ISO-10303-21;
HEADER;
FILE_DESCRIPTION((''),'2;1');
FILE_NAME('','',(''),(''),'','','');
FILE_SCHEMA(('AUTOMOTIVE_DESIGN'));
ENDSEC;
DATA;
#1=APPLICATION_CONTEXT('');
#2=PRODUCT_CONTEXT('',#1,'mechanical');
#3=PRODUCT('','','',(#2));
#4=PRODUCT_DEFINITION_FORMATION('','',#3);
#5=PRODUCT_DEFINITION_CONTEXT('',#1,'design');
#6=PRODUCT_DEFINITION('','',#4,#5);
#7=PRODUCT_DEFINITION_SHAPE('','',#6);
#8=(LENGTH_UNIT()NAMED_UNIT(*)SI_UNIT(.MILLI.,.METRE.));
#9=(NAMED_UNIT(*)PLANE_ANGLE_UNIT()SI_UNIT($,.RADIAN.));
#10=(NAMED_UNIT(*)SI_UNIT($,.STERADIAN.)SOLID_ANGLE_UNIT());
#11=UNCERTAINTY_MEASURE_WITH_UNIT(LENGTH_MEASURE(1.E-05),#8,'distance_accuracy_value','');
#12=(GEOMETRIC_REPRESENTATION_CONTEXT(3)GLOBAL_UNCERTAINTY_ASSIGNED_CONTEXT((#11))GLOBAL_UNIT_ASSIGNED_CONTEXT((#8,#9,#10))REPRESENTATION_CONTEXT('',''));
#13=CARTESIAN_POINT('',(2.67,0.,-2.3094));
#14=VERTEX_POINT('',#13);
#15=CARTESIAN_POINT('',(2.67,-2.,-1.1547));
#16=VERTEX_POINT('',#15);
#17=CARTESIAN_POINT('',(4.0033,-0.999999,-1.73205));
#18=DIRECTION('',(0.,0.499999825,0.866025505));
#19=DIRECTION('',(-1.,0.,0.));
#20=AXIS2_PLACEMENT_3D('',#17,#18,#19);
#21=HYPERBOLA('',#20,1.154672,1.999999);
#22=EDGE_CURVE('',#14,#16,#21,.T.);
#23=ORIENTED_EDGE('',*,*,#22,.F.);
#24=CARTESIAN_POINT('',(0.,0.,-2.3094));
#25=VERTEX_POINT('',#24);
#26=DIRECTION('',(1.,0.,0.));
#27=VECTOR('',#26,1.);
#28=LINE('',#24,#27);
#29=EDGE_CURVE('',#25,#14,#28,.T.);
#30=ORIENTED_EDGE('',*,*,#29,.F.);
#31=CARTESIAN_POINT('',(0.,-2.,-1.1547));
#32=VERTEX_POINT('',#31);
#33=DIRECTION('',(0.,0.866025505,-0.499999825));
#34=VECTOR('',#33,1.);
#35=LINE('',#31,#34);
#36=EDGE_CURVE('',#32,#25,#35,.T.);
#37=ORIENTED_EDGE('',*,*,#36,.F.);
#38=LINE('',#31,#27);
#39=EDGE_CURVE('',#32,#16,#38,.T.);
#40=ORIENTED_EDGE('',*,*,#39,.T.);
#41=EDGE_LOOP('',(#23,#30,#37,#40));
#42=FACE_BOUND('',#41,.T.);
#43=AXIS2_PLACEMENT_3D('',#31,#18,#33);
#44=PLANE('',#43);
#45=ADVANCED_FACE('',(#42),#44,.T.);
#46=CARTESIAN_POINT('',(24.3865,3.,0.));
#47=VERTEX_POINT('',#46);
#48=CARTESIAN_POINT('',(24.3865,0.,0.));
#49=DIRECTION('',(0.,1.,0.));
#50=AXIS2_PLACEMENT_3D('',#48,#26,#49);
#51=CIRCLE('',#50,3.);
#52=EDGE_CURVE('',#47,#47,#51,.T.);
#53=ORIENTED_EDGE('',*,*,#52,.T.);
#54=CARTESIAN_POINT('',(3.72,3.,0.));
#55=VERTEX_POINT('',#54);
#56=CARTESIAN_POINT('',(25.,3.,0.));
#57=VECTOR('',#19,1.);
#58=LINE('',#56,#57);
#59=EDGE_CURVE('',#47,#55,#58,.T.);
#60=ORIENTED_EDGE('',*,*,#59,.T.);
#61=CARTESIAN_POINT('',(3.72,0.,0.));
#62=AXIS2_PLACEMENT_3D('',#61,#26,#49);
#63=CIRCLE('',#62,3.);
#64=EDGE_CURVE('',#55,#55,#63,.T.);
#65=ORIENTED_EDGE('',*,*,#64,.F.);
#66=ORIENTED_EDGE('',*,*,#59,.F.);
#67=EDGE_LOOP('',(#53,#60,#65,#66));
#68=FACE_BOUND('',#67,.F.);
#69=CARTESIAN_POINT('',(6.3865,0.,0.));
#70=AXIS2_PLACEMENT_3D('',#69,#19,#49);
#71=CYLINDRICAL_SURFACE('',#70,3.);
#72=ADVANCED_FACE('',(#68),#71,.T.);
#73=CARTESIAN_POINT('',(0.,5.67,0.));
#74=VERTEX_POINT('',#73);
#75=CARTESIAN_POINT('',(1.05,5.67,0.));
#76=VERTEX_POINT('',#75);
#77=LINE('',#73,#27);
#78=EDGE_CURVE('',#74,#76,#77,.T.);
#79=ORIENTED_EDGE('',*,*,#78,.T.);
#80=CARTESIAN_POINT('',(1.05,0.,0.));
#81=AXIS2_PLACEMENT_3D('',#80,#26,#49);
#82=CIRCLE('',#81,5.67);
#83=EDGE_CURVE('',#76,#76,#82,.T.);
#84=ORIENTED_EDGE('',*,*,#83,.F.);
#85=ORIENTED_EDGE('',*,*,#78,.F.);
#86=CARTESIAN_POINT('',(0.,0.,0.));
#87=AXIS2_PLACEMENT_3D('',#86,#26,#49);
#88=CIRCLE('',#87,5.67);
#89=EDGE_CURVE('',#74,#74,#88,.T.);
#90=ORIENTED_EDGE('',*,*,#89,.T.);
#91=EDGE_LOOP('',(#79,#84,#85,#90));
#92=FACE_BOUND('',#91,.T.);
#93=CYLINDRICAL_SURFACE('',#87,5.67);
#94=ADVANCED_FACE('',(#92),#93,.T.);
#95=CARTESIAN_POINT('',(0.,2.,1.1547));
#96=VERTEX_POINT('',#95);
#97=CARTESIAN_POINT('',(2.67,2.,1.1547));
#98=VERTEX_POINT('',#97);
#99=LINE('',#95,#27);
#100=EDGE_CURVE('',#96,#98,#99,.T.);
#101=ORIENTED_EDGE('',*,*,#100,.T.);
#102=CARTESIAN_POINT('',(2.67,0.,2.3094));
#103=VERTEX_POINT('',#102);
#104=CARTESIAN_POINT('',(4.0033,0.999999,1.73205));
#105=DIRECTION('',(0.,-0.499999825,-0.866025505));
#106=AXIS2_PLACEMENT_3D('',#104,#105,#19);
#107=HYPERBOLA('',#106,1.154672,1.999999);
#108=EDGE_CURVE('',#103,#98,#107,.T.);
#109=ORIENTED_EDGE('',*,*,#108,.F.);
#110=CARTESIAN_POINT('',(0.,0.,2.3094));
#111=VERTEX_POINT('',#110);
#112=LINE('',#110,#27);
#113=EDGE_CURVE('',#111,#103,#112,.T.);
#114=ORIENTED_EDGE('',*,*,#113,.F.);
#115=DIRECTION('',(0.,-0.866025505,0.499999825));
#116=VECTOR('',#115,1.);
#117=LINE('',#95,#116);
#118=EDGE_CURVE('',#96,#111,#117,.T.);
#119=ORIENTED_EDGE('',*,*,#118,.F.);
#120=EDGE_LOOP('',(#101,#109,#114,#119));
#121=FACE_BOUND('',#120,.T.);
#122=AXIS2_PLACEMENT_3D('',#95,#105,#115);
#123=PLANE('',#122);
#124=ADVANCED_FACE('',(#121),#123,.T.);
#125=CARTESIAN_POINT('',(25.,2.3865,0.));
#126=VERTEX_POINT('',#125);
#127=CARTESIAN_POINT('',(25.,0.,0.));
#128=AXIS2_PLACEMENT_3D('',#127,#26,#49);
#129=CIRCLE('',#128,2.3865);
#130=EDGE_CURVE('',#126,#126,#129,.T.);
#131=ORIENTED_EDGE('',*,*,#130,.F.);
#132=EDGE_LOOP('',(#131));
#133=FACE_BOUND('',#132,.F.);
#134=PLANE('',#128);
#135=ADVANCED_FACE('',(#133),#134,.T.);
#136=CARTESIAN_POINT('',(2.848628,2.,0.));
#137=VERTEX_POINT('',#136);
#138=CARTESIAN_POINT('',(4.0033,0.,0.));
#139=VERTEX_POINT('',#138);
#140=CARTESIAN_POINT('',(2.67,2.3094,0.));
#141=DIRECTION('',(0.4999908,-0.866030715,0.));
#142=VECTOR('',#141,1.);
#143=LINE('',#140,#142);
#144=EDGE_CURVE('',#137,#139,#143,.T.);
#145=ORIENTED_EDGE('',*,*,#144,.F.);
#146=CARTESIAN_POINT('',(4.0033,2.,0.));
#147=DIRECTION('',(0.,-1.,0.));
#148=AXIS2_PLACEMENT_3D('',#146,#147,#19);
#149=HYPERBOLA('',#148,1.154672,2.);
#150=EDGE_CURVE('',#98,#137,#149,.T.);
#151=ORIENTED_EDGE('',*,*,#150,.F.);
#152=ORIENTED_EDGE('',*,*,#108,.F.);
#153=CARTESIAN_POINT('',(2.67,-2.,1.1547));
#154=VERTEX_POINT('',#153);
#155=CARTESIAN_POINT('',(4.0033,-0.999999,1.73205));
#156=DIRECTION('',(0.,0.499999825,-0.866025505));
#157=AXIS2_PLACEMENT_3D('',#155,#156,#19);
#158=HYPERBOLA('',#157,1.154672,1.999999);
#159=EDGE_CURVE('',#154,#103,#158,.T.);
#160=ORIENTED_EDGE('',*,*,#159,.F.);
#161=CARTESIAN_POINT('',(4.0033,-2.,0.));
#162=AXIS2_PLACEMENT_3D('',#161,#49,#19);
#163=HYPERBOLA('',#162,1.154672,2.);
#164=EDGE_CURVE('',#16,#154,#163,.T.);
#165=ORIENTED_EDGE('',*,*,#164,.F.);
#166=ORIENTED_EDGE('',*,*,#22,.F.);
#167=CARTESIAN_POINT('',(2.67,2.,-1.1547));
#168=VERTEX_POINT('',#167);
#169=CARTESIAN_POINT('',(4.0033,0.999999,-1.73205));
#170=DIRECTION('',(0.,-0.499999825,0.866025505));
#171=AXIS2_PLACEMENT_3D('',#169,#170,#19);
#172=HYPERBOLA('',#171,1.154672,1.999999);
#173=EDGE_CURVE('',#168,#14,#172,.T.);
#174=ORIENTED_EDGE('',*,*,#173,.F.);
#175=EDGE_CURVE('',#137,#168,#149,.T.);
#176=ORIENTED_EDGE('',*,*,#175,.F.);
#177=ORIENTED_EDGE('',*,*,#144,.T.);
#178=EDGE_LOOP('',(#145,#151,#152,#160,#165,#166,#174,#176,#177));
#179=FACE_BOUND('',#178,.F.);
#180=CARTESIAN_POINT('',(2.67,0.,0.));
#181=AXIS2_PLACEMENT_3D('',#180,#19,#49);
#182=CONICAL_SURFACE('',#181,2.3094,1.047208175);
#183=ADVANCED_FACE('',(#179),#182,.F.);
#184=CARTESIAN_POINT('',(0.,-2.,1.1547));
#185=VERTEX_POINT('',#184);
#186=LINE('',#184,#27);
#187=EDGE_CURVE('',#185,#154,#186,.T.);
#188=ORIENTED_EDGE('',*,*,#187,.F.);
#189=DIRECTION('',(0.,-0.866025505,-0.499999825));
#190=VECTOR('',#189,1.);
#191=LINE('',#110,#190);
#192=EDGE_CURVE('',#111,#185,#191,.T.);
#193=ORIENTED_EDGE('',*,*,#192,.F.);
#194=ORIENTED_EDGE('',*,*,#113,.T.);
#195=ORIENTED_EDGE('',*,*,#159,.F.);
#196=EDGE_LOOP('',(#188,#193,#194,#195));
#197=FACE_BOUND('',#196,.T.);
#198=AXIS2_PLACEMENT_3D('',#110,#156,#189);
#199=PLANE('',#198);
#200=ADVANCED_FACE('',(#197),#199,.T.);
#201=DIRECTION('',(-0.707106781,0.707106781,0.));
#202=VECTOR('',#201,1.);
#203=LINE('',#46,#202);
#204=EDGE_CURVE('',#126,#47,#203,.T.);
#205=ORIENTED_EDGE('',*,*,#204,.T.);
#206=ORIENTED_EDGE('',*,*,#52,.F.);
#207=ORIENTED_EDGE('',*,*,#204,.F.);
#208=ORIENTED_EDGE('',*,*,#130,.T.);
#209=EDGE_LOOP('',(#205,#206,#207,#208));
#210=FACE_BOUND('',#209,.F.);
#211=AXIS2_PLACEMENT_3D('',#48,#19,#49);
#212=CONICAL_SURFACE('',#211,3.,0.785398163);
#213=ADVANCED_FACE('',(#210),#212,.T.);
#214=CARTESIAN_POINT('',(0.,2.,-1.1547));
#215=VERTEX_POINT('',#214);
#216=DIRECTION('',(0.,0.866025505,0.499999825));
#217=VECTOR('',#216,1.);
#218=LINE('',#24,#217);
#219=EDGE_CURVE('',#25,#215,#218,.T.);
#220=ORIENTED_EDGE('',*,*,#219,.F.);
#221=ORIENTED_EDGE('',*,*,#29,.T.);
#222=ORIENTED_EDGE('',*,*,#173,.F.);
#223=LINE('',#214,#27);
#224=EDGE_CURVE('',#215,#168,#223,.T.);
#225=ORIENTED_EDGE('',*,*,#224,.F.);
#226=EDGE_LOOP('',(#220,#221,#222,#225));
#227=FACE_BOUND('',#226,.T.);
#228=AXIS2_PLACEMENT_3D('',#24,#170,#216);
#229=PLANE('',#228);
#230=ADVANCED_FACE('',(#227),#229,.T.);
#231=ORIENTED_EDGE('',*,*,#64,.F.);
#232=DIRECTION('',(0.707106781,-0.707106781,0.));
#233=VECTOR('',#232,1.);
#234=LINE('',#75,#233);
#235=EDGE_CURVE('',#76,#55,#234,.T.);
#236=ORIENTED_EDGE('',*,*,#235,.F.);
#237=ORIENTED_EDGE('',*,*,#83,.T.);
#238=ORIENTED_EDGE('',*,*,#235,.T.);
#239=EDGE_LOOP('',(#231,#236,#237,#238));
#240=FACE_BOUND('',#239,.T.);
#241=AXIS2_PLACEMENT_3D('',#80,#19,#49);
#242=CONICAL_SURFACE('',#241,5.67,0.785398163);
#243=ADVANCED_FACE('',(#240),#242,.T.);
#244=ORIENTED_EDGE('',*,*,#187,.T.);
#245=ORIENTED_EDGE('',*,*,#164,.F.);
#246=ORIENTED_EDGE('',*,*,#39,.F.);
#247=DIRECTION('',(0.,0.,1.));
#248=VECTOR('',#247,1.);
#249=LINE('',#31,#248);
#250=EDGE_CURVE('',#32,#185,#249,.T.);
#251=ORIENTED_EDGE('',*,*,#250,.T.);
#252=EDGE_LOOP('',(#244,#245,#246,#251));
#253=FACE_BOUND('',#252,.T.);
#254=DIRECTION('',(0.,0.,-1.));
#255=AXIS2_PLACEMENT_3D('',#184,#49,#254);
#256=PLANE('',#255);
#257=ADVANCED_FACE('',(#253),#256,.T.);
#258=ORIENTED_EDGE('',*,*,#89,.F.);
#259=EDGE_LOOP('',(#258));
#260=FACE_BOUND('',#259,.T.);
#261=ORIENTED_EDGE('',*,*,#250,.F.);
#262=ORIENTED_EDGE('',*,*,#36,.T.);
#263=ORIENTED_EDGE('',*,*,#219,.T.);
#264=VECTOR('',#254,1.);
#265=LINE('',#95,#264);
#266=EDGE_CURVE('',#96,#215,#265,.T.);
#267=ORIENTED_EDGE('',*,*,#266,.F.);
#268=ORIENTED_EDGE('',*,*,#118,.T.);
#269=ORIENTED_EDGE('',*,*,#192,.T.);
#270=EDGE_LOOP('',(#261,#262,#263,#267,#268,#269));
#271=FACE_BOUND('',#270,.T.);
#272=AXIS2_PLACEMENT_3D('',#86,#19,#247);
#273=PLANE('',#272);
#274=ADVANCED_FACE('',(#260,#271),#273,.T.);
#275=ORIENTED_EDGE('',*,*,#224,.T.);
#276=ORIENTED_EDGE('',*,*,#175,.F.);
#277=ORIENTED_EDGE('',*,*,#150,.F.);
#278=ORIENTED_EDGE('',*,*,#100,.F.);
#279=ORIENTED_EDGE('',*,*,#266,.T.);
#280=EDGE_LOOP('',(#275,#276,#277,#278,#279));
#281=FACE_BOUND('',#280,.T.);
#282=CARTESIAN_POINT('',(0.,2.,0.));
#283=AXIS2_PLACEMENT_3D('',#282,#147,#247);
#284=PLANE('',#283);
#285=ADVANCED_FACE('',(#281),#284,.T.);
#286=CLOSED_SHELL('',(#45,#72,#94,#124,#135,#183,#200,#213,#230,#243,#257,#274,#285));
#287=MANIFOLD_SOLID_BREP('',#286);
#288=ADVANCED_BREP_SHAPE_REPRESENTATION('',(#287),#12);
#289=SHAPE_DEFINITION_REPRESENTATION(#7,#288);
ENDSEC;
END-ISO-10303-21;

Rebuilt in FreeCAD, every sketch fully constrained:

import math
import FreeCAD as App
import Part
import Sketcher

V = App.Vector
Q = App.Units.Quantity


def edges_at(feature, points):
    """Names of the edges that pass closest to the given points."""
    edges = feature.Shape.Edges
    near = lambda p: min(range(len(edges)), key=lambda i: edges[i].distToShape(Part.Vertex(*p))[0])
    return sorted({f"Edge{near(p) + 1}" for p in points})

doc = App.newDocument("Part")
body = doc.addObject("PartDesign::Body", "Body")

sketch1 = body.newObject("Sketcher::SketchObject", "Sketch")
sketch1.AttachmentSupport = (doc.getObject("XY_Plane"), [""])
sketch1.MapMode = "FlatFace"
sketch1.addGeometry([
    Part.LineSegment(V(4, 0, 0), V(25, 0, 0)),
    Part.LineSegment(V(25, 0, 0), V(25, 3, 0)),
    Part.LineSegment(V(25, 3, 0), V(3.7, 3, 0)),
    Part.LineSegment(V(3.7, 3, 0), V(1.1, 5.7, 0)),
    Part.LineSegment(V(1.1, 5.7, 0), V(0, 5.7, 0)),
    Part.LineSegment(V(0, 5.7, 0), V(0, 2.3, 0)),
    Part.LineSegment(V(0, 2.3, 0), V(2.7, 2.3, 0)),
    Part.LineSegment(V(2.7, 2.3, 0), V(4, 0, 0)),
], False)
sketch1.addConstraint([
    Sketcher.Constraint("Coincident", 0, 2, 1, 1),
    Sketcher.Constraint("Coincident", 1, 2, 2, 1),
    Sketcher.Constraint("Coincident", 2, 2, 3, 1),
    Sketcher.Constraint("Coincident", 3, 2, 4, 1),
    Sketcher.Constraint("Coincident", 4, 2, 5, 1),
    Sketcher.Constraint("Coincident", 5, 2, 6, 1),
    Sketcher.Constraint("Coincident", 6, 2, 7, 1),
    Sketcher.Constraint("Coincident", 7, 2, 0, 1),
    Sketcher.Constraint("Horizontal", 0),
    Sketcher.Constraint("Vertical", 1),
    Sketcher.Constraint("Horizontal", 2),
    Sketcher.Constraint("Horizontal", 4),
    Sketcher.Constraint("Vertical", 5),
    Sketcher.Constraint("Horizontal", 6),
    Sketcher.Constraint("PointOnObject", 0, 2, -1),
    Sketcher.Constraint("PointOnObject", 4, 2, -2),
    Sketcher.Constraint("DistanceX", -1, 1, 0, 2, Q("25 mm")),
    Sketcher.Constraint("DistanceX", 6, 1, 6, 2, Q("2.67 mm")),
    Sketcher.Constraint("DistanceY", 1, 1, 1, 2, Q("3 mm")),
    Sketcher.Constraint("DistanceX", -1, 1, 2, 2, Q("3.72 mm")),
    Sketcher.Constraint("Angle", 3, Q("135 deg")),
    Sketcher.Constraint("Angle", 7, Q("-60.0006 deg")),
    Sketcher.Constraint("DistanceX", 3, 2, 2, 2, Q("2.67 mm")),
    Sketcher.Constraint("DistanceX", 0, 1, 0, 2, Q("20.9967 mm")),
])
revolution = body.newObject("PartDesign::Revolution", "Revolution")
revolution.Profile = sketch1
revolution.ReferenceAxis = (sketch1, ["H_Axis"])
revolution.Angle = 360

sketch2 = body.newObject("Sketcher::SketchObject", "Sketch001")
sketch2.AttachmentSupport = (doc.getObject("YZ_Plane"), [""])
sketch2.MapMode = "FlatFace"
sketch2.addGeometry([
    Part.LineSegment(V(2, 1.2, 0), V(0, 2.3, 0)),
    Part.ArcOfCircle(Part.Circle(V(0, 0, 0), V(0, 0, 1), 2.3), math.radians(30), math.radians(90)),
    Part.ArcOfCircle(Part.Circle(V(0, 0, 0), V(0, 0, 1), 2.3), math.radians(90), math.radians(150)),
    Part.LineSegment(V(0, 2.3, 0), V(-2, 1.2, 0)),
    Part.ArcOfCircle(Part.Circle(V(0, 0, 0), V(0, 0, 1), 2.3), math.radians(-30), math.radians(30)),
    Part.LineSegment(V(2, -1.2, 0), V(2, 1.2, 0)),
    Part.LineSegment(V(-2, 1.2, 0), V(-2, -1.2, 0)),
    Part.ArcOfCircle(Part.Circle(V(0, 0, 0), V(0, 0, 1), 2.3), math.radians(150), math.radians(210)),
    Part.LineSegment(V(-2, -1.2, 0), V(0, -2.3, 0)),
    Part.ArcOfCircle(Part.Circle(V(0, 0, 0), V(0, 0, 1), 2.3), math.radians(-150), math.radians(-90)),
    Part.ArcOfCircle(Part.Circle(V(0, 0, 0), V(0, 0, 1), 2.3), math.radians(-90), math.radians(-30)),
    Part.LineSegment(V(0, -2.3, 0), V(2, -1.2, 0)),
], False)
sketch2.addConstraint([
    Sketcher.Constraint("Coincident", 0, 1, 1, 1),
    Sketcher.Constraint("Coincident", 1, 2, 0, 2),
    Sketcher.Constraint("Coincident", 2, 1, 3, 1),
    Sketcher.Constraint("Coincident", 3, 2, 2, 2),
    Sketcher.Constraint("Coincident", 4, 1, 5, 1),
    Sketcher.Constraint("Coincident", 5, 2, 4, 2),
    Sketcher.Constraint("Coincident", 6, 1, 7, 1),
    Sketcher.Constraint("Coincident", 7, 2, 6, 2),
    Sketcher.Constraint("Coincident", 8, 1, 9, 1),
    Sketcher.Constraint("Coincident", 9, 2, 8, 2),
    Sketcher.Constraint("Coincident", 10, 1, 11, 1),
    Sketcher.Constraint("Coincident", 11, 2, 10, 2),
    Sketcher.Constraint("Vertical", 5),
    Sketcher.Constraint("Vertical", 6),
    Sketcher.Constraint("Coincident", 1, 3, -1, 1),
    Sketcher.Constraint("Coincident", 2, 3, -1, 1),
    Sketcher.Constraint("Coincident", 4, 3, -1, 1),
    Sketcher.Constraint("Coincident", 7, 3, -1, 1),
    Sketcher.Constraint("Coincident", 9, 3, -1, 1),
    Sketcher.Constraint("Coincident", 10, 3, -1, 1),
    Sketcher.Constraint("Coincident", 2, 1, 1, 2),
    Sketcher.Constraint("Coincident", 5, 2, 0, 1),
    Sketcher.Constraint("Coincident", 6, 1, 3, 2),
    Sketcher.Constraint("Coincident", 8, 1, 7, 2),
    Sketcher.Constraint("Coincident", 10, 1, 9, 2),
    Sketcher.Constraint("PointOnObject", 1, 2, -2),
    Sketcher.Constraint("PointOnObject", 9, 2, -2),
    Sketcher.Constraint("Parallel", 0, 8),
    Sketcher.Constraint("Parallel", 3, 11),
    Sketcher.Constraint("Angle", 0, Q("150 deg")),
    Sketcher.Constraint("DistanceX", -1, 1, 0, 1, Q("2 mm")),
])
pad1 = body.newObject("PartDesign::Pad", "Pad")
pad1.Profile = sketch2
pad1.Length = 2.8486
doc.recompute()

chamfer = body.newObject("PartDesign::Chamfer", "Chamfer")
chamfer.Base = (pad1, edges_at(pad1, [(25, -3, 0)]))
chamfer.ChamferType = "Two distances"
chamfer.Size = 0.6135
chamfer.Size2 = 0.6135

doc.recompute()
